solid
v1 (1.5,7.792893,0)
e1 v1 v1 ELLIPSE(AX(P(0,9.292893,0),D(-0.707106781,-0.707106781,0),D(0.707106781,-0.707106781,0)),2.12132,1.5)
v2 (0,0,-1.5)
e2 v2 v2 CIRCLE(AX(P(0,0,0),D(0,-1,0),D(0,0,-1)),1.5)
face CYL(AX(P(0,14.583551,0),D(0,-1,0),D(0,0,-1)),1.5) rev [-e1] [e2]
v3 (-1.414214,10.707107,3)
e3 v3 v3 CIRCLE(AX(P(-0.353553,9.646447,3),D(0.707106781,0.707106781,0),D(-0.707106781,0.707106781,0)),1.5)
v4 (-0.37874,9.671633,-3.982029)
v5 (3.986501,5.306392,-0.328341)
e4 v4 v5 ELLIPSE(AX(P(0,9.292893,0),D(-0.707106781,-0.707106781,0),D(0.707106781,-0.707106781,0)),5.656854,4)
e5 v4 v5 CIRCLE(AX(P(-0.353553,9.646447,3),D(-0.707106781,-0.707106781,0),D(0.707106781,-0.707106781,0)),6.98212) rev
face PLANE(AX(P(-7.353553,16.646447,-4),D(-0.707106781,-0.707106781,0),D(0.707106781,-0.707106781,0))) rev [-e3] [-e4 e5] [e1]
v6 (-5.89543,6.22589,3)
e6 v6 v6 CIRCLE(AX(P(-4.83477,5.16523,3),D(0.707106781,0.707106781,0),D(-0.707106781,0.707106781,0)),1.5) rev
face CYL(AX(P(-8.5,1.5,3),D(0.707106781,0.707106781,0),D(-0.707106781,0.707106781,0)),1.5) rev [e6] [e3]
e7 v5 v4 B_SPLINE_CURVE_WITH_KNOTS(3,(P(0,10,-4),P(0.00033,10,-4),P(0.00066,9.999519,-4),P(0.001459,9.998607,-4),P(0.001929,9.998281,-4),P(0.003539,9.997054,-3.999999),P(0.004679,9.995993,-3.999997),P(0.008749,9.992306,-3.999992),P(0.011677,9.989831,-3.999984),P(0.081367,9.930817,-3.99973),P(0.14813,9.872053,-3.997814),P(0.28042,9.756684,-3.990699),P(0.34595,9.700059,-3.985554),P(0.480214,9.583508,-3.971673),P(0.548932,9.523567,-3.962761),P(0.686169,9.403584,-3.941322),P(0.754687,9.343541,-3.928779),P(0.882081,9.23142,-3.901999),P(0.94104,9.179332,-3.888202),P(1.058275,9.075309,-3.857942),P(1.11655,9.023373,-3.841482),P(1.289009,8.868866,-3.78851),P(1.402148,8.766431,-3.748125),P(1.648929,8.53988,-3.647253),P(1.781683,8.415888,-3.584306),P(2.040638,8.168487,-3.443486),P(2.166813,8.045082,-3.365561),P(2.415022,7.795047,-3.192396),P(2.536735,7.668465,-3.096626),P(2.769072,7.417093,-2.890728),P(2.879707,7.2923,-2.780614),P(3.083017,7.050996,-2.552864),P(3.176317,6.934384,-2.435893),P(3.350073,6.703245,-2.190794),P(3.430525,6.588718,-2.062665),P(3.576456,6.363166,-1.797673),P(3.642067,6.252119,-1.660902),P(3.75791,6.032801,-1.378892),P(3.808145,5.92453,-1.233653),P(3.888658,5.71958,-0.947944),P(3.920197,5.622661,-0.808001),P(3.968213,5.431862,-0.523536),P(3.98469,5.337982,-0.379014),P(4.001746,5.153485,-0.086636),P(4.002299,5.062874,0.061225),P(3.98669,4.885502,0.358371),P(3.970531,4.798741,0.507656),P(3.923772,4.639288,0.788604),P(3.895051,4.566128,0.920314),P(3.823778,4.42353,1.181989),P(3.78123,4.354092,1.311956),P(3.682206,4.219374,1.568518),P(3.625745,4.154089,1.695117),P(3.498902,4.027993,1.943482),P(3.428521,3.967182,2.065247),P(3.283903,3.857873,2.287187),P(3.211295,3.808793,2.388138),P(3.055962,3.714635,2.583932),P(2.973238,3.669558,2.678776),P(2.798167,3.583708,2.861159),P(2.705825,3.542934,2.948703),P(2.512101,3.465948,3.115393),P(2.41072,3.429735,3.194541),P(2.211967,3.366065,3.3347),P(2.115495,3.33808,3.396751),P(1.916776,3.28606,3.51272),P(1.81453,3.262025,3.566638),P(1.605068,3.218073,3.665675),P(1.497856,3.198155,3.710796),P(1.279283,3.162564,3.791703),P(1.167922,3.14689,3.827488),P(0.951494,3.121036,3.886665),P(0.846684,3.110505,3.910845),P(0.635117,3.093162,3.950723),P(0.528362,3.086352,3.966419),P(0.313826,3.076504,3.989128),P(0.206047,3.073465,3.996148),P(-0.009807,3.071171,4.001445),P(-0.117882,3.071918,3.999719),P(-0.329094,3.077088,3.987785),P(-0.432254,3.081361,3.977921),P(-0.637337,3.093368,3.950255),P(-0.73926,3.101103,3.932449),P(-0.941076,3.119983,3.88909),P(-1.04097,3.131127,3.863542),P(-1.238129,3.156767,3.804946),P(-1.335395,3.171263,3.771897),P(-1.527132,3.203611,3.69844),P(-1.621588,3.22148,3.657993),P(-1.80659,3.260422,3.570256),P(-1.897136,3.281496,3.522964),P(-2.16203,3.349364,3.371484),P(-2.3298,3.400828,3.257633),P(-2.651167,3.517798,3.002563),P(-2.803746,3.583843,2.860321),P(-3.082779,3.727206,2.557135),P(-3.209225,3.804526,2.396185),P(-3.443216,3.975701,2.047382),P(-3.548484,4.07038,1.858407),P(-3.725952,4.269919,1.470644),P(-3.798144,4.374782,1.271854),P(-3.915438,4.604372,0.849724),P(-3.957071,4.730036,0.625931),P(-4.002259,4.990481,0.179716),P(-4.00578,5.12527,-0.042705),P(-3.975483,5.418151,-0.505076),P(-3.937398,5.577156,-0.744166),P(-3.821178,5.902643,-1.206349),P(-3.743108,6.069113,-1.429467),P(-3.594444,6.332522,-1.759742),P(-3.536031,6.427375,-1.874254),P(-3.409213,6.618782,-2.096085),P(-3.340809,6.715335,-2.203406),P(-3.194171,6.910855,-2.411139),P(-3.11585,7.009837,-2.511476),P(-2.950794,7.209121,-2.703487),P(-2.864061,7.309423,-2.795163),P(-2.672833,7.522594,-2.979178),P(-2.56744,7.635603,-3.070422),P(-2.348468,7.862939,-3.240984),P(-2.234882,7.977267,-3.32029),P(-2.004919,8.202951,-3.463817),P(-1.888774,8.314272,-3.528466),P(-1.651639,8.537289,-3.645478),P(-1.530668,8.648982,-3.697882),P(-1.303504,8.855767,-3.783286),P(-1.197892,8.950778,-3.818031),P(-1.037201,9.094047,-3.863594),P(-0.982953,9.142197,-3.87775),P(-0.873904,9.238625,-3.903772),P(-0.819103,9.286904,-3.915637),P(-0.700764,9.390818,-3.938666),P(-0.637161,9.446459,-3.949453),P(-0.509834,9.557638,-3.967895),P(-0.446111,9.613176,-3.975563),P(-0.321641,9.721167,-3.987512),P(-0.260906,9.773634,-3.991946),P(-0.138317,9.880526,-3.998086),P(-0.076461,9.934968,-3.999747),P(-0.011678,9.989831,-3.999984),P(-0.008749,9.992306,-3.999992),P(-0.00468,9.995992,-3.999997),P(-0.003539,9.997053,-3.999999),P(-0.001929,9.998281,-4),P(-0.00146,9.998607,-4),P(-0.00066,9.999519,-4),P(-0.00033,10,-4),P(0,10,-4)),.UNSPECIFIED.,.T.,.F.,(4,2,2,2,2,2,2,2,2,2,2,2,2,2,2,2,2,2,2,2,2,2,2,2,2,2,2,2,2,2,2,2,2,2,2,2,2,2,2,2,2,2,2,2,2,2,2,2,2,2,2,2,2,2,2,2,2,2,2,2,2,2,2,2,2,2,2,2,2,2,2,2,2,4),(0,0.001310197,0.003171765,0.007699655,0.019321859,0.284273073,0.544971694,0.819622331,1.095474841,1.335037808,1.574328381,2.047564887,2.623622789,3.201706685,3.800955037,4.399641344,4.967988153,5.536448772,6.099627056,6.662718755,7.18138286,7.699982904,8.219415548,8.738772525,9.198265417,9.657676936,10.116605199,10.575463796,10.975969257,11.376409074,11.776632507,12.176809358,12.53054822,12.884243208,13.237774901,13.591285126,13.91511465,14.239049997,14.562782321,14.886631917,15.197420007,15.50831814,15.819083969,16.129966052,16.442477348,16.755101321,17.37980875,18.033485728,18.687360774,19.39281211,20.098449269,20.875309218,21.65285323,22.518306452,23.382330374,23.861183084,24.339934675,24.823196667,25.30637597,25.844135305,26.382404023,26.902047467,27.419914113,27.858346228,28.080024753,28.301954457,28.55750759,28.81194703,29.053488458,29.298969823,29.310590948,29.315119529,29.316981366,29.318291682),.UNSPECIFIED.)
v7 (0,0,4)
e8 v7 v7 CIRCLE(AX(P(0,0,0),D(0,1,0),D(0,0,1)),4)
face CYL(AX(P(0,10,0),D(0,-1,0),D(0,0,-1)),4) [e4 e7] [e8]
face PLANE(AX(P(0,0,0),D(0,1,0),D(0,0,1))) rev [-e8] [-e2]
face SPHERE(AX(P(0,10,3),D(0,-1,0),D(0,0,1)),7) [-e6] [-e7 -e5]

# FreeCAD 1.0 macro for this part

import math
import FreeCAD as App
import Part
import Sketcher

V = App.Vector


def add_polygon(sketch, points):
    """Adds a closed chain of lines whose ends are joined by coincident constraints."""
    first, n = sketch.GeometryCount, len(points)
    for a, b in zip(points, points[1:] + points[:1]):
        sketch.addGeometry(Part.LineSegment(App.Vector(*a, 0), App.Vector(*b, 0)), False)
    for i in range(n):
        sketch.addConstraint(Sketcher.Constraint("Coincident", first + i, 2, first + (i + 1) % n, 1))

doc = App.newDocument("Part")
body = doc.addObject("PartDesign::Body", "Body")

# Sketch on XZ plane
sketch1 = body.newObject("Sketcher::SketchObject", "Sketch")
sketch1.AttachmentSupport = (doc.getObject("XZ_Plane"), [""])
sketch1.MapMode = "FlatFace"
sketch1.addGeometry(Part.Circle(V(0, 0, 0), V(0, 0, 1), 4), False)
sketch1.addConstraint([
    Sketcher.Constraint("Coincident", 0, 3, -1, 1),
    Sketcher.Constraint("Diameter", 0, 8.0),
])
pad1 = body.newObject("PartDesign::Pad", "Pad")
pad1.Profile = sketch1
pad1.Length = 10
pad1.Reversed = True

# Sketch on YZ plane
sketch2 = body.newObject("Sketcher::SketchObject", "Sketch001")
sketch2.AttachmentSupport = (doc.getObject("YZ_Plane"), [""])
sketch2.MapMode = "FlatFace"
sketch2.addGeometry([
    Part.LineSegment(V(17, 3, 0), V(3, 3, 0)),
    Part.ArcOfCircle(Part.Circle(V(10, 3, 0), V(0, 0, 1), 7), math.radians(180), math.radians(360)),
], False)
sketch2.addGeometry(Part.LineSegment(V(3, 3, 0), V(17, 3, 0)), True)  # axis
sketch2.addConstraint([
    Sketcher.Constraint("Coincident", 0, 1, 1, 2),
    Sketcher.Constraint("Coincident", 1, 1, 0, 2),
    Sketcher.Constraint("Horizontal", 0),
    Sketcher.Constraint("Horizontal", 2),
    Sketcher.Constraint("Coincident", 2, 1, 1, 1),
    Sketcher.Constraint("Horizontal", 1, 3, 0, 1),
    Sketcher.Constraint("Equal", 0, 2),
    Sketcher.Constraint("Radius", 1, 7.0),
    Sketcher.Constraint("DistanceX", -1, 1, 1, 3, 10.0),
    Sketcher.Constraint("DistanceY", -1, 1, 1, 3, 3.0),
])
revolution = body.newObject("PartDesign::Revolution", "Revolution")
revolution.Profile = sketch2
revolution.ReferenceAxis = (sketch2, ["Axis0"])
revolution.Angle = 360

# Sketch on XY plane
sketch3 = body.newObject("Sketcher::SketchObject", "Sketch002")
sketch3.AttachmentSupport = (doc.getObject("XY_Plane"), [""])
sketch3.MapMode = "FlatFace"
add_polygon(sketch3, [(7, 17), (-7, 17), (-7.4, 16.6), (6.6, 2.6), (7, 3)])  # lines 0-4
sketch3.addConstraint([
    Sketcher.Constraint("Horizontal", 0),
    Sketcher.Constraint("Vertical", 4),
    Sketcher.Constraint("Perpendicular", 1, 2),
    Sketcher.Constraint("Perpendicular", 2, 3),
    Sketcher.Constraint("Equal", 0, 4),
    Sketcher.Constraint("Equal", 1, 3),
    Sketcher.Constraint("DistanceX", 0, 2, 0, 1, 14.0),
    Sketcher.Constraint("DistanceX", 0, 2, -1, 1, 7.0),
    Sketcher.Constraint("DistanceY", -1, 1, 0, 2, 17.0),
    Sketcher.Constraint("Distance", 1, 0.5),
])
pocket1 = body.newObject("PartDesign::Pocket", "Pocket")
pocket1.Profile = sketch3
pocket1.Type = "ThroughAll"
pocket1.Midplane = True

# Sketch on an angled plane
sketch4 = body.newObject("Sketcher::SketchObject", "Sketch003")
sketch4.Placement = App.Placement(V(4.646447, 4.646447, 0), App.Rotation(V(0, 0, -1), V(-0.707106781, 0.707106781, 0), V(0.707106781, 0.707106781, 0), "ZXY"))
sketch4.addGeometry(Part.Circle(V(-3, 7.1, 0), V(0, 0, 1), 1.5), False)
sketch4.addConstraint([
    Sketcher.Constraint("Diameter", 0, 3.0),
    Sketcher.Constraint("DistanceX", 0, 3, -1, 1, 3.0),
    Sketcher.Constraint("DistanceY", -1, 1, 0, 3, 7.071068),
])
pocket2 = body.newObject("PartDesign::Pocket", "Pocket001")
pocket2.Profile = sketch4
pocket2.Type = "ThroughAll"

# Sketch on XZ plane
sketch5 = body.newObject("Sketcher::SketchObject", "Sketch004")
sketch5.AttachmentSupport = (doc.getObject("XZ_Plane"), [""])
sketch5.MapMode = "FlatFace"
sketch5.addGeometry(Part.Circle(V(0, 0, 0), V(0, 0, 1), 1.5), False)
sketch5.addConstraint([
    Sketcher.Constraint("Coincident", 0, 3, -1, 1),
    Sketcher.Constraint("Diameter", 0, 3.0),
])
pocket3 = body.newObject("PartDesign::Pocket", "Pocket002")
pocket3.Profile = sketch5
pocket3.Type = "ThroughAll"

doc.recompute()
